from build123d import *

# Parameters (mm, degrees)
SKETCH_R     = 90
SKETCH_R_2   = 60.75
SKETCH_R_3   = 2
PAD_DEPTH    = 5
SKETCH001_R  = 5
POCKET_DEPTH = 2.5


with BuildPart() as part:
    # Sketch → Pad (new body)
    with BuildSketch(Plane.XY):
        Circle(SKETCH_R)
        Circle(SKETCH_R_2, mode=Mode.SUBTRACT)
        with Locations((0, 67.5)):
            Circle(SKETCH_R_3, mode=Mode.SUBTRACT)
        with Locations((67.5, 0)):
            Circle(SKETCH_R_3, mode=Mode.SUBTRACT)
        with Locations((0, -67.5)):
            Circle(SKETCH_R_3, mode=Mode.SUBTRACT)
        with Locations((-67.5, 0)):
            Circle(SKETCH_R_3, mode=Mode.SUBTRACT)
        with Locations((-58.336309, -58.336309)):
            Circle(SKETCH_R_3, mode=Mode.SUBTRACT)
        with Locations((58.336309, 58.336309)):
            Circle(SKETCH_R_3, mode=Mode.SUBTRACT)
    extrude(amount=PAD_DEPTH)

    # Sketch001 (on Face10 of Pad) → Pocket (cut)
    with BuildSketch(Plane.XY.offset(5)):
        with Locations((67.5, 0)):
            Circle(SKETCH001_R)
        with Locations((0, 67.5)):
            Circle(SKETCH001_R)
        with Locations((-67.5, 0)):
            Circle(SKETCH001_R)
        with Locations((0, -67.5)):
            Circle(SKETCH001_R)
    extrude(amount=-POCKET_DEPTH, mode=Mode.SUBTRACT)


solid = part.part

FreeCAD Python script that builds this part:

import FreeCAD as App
import Part
import Sketcher
Q = App.Units.Quantity

doc = App.newDocument("Part")
body = doc.addObject("PartDesign::Body", "Body")

sketch1 = body.newObject("Sketcher::SketchObject", "Sketch")
sketch1.AttachmentSupport = (doc.getObject("XY_Plane"), [""])
sketch1.MapMode = "FlatFace"
sketch1.addGeometry(Part.Circle(App.Vector(0, 0, 0), App.Vector(0, 0, 1), 90), False)
sketch1.addGeometry(Part.Circle(App.Vector(-58.336309, -58.336309, 0), App.Vector(0, 0, 1), 2), False)
sketch1.addGeometry(Part.Circle(App.Vector(0, -67.5, 0), App.Vector(0, 0, 1), 2), False)
sketch1.addGeometry(Part.Circle(App.Vector(-67.5, 0, 0), App.Vector(0, 0, 1), 2), False)
sketch1.addGeometry(Part.Circle(App.Vector(0, 0, 0), App.Vector(0, 0, 1), 60.75), False)
sketch1.addGeometry(Part.Circle(App.Vector(67.5, 0, 0), App.Vector(0, 0, 1), 2), False)
sketch1.addGeometry(Part.Circle(App.Vector(0, 67.5, 0), App.Vector(0, 0, 1), 2), False)
sketch1.addGeometry(Part.Circle(App.Vector(58.336309, 58.336309, 0), App.Vector(0, 0, 1), 2), False)
sketch1.addConstraint(Sketcher.Constraint("Coincident", 0, 3, -1, 1))
sketch1.addConstraint(Sketcher.Constraint("Coincident", 4, 3, -1, 1))
sketch1.addConstraint(Sketcher.Constraint("Equal", 1, 2))
sketch1.addConstraint(Sketcher.Constraint("Equal", 2, 3))
sketch1.addConstraint(Sketcher.Constraint("Equal", 3, 5))
sketch1.addConstraint(Sketcher.Constraint("Equal", 5, 6))
sketch1.addConstraint(Sketcher.Constraint("Equal", 6, 7))
sketch1.addConstraint(Sketcher.Constraint("Symmetric", 3, 3, 5, 3, -1, 1))
sketch1.addConstraint(Sketcher.Constraint("Symmetric", 2, 3, 6, 3, -1, 1))
sketch1.addConstraint(Sketcher.Constraint("Symmetric", 1, 3, 7, 3, -1, 1))
sketch1.addConstraint(Sketcher.Constraint("PointOnObject", 2, 3, -2))
sketch1.addConstraint(Sketcher.Constraint("PointOnObject", 3, 3, -1))
sketch1.addConstraint(Sketcher.Constraint("Diameter", 0, Q("180 mm")))
sketch1.addConstraint(Sketcher.Constraint("Diameter", 1, Q("4 mm")))
sketch1.addConstraint(Sketcher.Constraint("Diameter", 4, Q("121.5 mm")))
sketch1.addConstraint(Sketcher.Constraint("DistanceX", 3, 3, 5, 3, Q("135 mm")))
sketch1.addConstraint(Sketcher.Constraint("DistanceY", 2, 3, 6, 3, Q("135 mm")))
sketch1.addConstraint(Sketcher.Constraint("DistanceX", 1, 3, -1, 1, Q("58.336309 mm")))
sketch1.addConstraint(Sketcher.Constraint("DistanceY", 1, 3, -1, 1, Q("58.336309 mm")))
pad1 = body.newObject("PartDesign::Pad", "Pad")
pad1.Profile = sketch1
pad1.Length = 5

sketch2 = body.newObject("Sketcher::SketchObject", "Sketch001")
sketch2.AttachmentSupport = (doc.getObject("XY_Plane"), [""])
sketch2.MapMode = "FlatFace"
sketch2.AttachmentOffset = App.Placement(App.Vector(0, 0, 5), App.Rotation())
sketch2.addGeometry(Part.Circle(App.Vector(67.5, 0, 0), App.Vector(0, 0, 1), 5), False)
sketch2.addGeometry(Part.Circle(App.Vector(0, 67.5, 0), App.Vector(0, 0, 1), 5), False)
sketch2.addGeometry(Part.Circle(App.Vector(-67.5, 0, 0), App.Vector(0, 0, 1), 5), False)
sketch2.addGeometry(Part.Circle(App.Vector(0, -67.5, 0), App.Vector(0, 0, 1), 5), False)
sketch2.addConstraint(Sketcher.Constraint("Equal", 0, 1))
sketch2.addConstraint(Sketcher.Constraint("Equal", 1, 2))
sketch2.addConstraint(Sketcher.Constraint("Equal", 2, 3))
sketch2.addConstraint(Sketcher.Constraint("Symmetric", 0, 3, 2, 3, -1, 1))
sketch2.addConstraint(Sketcher.Constraint("Symmetric", 1, 3, 3, 3, -1, 1))
sketch2.addConstraint(Sketcher.Constraint("PointOnObject", 0, 3, -1))
sketch2.addConstraint(Sketcher.Constraint("PointOnObject", 1, 3, -2))
sketch2.addConstraint(Sketcher.Constraint("Diameter", 0, Q("10 mm")))
sketch2.addConstraint(Sketcher.Constraint("DistanceX", 2, 3, 0, 3, Q("135 mm")))
sketch2.addConstraint(Sketcher.Constraint("DistanceY", 3, 3, 1, 3, Q("135 mm")))
pocket1 = body.newObject("PartDesign::Pocket", "Pocket")
pocket1.Profile = sketch2
pocket1.Length = 2.5

doc.recompute()
